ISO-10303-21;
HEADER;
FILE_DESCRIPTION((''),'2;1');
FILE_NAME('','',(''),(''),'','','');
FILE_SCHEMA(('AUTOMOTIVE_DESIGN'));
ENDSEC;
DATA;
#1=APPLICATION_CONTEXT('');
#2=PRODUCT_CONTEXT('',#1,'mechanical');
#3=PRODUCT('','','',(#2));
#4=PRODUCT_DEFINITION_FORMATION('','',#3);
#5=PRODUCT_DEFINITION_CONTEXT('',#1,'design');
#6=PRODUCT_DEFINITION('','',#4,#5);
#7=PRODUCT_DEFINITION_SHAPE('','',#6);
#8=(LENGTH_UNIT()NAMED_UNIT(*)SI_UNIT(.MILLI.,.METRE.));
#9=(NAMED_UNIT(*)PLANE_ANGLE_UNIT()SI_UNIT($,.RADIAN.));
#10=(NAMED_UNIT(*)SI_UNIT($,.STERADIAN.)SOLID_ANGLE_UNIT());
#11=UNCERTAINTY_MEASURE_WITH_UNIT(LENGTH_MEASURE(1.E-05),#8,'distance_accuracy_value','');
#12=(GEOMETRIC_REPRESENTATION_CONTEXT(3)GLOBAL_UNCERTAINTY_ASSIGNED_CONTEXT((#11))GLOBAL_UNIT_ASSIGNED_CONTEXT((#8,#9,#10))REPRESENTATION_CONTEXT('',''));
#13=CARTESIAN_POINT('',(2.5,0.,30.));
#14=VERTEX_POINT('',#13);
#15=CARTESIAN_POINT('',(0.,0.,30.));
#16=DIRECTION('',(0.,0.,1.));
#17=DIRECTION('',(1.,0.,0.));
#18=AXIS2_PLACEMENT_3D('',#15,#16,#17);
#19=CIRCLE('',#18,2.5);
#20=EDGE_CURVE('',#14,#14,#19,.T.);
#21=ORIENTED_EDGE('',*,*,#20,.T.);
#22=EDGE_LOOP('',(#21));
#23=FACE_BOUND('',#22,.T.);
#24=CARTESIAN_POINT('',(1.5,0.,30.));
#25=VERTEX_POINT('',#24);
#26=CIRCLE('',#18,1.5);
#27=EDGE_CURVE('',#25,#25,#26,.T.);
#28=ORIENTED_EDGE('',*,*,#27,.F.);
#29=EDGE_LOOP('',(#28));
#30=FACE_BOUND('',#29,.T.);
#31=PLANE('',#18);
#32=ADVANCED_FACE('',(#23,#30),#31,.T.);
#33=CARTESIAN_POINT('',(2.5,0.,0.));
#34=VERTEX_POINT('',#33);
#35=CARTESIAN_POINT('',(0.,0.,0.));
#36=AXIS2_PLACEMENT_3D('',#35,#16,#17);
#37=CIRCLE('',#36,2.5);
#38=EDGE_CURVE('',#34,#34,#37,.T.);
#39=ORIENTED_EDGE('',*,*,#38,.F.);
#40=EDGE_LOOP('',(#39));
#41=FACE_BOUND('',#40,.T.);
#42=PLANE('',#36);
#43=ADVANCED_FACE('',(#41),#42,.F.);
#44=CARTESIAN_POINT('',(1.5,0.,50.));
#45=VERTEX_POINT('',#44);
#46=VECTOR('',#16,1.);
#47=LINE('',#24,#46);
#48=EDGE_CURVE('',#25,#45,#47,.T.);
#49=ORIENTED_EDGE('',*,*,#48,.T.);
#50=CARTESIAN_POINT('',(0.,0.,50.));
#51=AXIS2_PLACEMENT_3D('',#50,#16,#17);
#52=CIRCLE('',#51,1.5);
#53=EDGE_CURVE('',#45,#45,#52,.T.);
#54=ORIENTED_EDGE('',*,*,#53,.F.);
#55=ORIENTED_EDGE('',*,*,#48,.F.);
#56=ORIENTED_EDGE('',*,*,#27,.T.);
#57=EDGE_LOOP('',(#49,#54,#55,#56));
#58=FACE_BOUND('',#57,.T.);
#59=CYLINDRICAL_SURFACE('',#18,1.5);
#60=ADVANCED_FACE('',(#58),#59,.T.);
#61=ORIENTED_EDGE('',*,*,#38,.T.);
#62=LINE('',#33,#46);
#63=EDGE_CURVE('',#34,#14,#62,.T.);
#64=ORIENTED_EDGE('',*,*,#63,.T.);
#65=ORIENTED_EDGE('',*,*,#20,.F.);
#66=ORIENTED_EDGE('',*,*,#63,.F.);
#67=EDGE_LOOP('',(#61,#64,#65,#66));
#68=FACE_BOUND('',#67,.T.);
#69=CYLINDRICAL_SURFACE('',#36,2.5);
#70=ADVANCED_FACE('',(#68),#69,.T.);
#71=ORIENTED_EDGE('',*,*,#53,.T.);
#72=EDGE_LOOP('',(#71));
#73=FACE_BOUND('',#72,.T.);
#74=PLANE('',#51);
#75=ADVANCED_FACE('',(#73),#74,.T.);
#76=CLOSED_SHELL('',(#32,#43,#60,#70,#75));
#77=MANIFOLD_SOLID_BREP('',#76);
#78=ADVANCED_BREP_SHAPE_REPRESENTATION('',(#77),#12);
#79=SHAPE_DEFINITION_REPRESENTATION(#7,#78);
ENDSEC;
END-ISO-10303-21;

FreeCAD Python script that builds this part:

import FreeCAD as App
import Part
import Sketcher
from FreeCAD import Vector
Q = App.Units.Quantity


def add_polygon(sketch, points):
    """Adds a closed chain of lines whose ends are joined by coincident constraints."""
    first, n = sketch.GeometryCount, len(points)
    for a, b in zip(points, points[1:] + points[:1]):
        sketch.addGeometry(Part.LineSegment(App.Vector(*a, 0), App.Vector(*b, 0)), False)
    for i in range(n):
        sketch.addConstraint(Sketcher.Constraint("Coincident", first + i, 2, first + (i + 1) % n, 1))

doc = App.newDocument("Part")
body = doc.addObject("PartDesign::Body", "Body")

# Sketch on XZ plane
sketch1 = body.newObject("Sketcher::SketchObject", "Sketch")
sketch1.AttachmentSupport = (doc.getObject("XZ_Plane"), [""])
sketch1.MapMode = "FlatFace"
add_polygon(sketch1, [(0, 50), (0, 0), (2.5, 0), (2.5, 30), (1.5, 30), (1.5, 50)])  # lines 0-5
sketch1.addConstraint([
    Sketcher.Constraint("Vertical", 0),
    Sketcher.Constraint("Horizontal", 1),
    Sketcher.Constraint("Vertical", 2),
    Sketcher.Constraint("Horizontal", 3),
    Sketcher.Constraint("Vertical", 4),
    Sketcher.Constraint("Horizontal", 5),
    Sketcher.Constraint("Coincident", 0, 2, -1, 1),
    Sketcher.Constraint("DistanceX", 3, 2, 3, 1, Q("1 mm")),
    Sketcher.Constraint("DistanceY", 0, 2, 0, 1, Q("50 mm")),
    Sketcher.Constraint("DistanceY", 2, 1, 2, 2, Q("30 mm")),
    Sketcher.Constraint("DistanceX", 1, 1, 1, 2, Q("2.5 mm")),
])
revolution = body.newObject("PartDesign::Revolution", "Revolution")
revolution.Profile = sketch1
revolution.ReferenceAxis = (sketch1, ["V_Axis"])
revolution.Angle = 360

doc.recompute()
